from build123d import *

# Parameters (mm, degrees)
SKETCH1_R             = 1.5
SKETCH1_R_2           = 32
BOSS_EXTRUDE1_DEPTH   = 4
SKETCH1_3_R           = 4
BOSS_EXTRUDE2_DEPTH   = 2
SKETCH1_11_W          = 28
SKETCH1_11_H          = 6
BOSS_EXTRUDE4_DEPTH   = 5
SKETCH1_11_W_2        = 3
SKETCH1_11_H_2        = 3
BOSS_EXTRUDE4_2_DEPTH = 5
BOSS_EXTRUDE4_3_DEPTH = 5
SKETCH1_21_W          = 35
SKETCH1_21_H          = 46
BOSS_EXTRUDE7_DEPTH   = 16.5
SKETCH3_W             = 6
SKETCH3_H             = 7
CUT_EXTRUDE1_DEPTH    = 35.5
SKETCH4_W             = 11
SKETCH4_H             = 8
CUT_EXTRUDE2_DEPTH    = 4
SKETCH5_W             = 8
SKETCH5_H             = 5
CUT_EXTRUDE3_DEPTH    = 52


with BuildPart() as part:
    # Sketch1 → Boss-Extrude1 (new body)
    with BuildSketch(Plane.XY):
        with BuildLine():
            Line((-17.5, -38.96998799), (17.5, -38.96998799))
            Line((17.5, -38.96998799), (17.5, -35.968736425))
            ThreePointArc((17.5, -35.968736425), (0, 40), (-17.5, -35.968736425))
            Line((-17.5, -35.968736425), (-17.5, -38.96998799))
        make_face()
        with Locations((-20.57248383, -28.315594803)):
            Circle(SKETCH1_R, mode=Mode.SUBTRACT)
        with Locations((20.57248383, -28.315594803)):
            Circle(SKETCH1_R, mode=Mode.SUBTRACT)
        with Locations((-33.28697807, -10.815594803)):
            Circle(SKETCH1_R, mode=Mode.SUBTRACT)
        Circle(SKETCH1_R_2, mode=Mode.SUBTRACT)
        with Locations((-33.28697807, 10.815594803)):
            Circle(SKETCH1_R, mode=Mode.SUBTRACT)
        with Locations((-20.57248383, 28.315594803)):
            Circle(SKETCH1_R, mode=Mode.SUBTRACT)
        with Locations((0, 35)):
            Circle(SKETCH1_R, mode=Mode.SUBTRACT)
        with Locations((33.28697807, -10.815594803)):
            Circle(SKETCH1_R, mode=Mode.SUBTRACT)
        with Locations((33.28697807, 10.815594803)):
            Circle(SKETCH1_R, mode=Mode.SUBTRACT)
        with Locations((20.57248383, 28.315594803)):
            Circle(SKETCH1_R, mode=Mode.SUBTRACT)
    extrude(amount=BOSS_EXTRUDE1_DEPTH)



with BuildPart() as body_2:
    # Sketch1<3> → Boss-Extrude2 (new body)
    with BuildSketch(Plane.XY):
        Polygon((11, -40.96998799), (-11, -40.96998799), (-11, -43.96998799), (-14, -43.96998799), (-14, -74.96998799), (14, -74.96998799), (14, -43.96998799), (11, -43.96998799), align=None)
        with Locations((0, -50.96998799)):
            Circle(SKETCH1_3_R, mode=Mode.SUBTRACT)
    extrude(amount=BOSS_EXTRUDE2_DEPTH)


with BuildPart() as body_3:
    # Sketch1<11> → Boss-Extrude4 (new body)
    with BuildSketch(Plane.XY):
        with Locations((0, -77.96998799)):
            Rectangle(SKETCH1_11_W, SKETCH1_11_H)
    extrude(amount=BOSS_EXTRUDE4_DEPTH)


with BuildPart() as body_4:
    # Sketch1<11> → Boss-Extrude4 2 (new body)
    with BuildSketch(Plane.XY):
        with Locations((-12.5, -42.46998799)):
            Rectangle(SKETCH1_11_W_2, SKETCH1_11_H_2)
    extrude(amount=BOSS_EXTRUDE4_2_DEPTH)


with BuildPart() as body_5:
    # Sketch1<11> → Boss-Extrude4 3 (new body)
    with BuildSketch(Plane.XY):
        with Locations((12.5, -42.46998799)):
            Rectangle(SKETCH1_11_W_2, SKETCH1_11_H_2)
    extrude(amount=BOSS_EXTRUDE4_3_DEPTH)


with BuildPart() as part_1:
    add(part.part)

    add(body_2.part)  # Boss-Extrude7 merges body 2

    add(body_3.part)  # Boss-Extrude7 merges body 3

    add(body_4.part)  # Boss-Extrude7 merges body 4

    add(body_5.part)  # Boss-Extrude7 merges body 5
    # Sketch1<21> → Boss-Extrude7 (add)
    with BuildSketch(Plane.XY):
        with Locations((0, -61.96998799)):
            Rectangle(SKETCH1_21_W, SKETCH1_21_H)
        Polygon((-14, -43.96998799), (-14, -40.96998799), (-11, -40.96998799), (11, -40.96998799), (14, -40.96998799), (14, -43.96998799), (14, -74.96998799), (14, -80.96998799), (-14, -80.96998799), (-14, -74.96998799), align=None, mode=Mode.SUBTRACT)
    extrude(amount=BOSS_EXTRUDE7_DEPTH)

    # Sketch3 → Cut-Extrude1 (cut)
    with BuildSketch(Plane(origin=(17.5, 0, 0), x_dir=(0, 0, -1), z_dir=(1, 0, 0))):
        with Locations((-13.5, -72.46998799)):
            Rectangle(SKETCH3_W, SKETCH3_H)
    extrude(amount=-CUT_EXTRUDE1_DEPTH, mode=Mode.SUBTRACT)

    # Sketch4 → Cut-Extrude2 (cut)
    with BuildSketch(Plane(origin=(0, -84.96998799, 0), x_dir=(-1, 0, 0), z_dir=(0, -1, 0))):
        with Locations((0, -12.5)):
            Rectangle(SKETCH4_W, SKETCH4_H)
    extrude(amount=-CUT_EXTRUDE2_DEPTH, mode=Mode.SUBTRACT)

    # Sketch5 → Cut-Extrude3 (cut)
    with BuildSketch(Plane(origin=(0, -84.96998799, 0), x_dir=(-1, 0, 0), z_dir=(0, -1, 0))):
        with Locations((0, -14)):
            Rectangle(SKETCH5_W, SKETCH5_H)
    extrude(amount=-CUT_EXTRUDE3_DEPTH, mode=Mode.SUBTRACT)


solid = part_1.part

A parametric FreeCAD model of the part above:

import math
import FreeCAD as App
import Part
import Sketcher
from FreeCAD import Vector

doc = App.newDocument("Part")
params = doc.addObject("Spreadsheet::Sheet", "Params")
for row, (alias, value) in enumerate([
    ("sketch1_diameter", "3 mm"),
    ("sketch1_diameter2", "64 mm"),
    ("sketch1_radius", "40 mm"),
    ("sketch1_width", "35 mm"),
    ("pad1_length", "4 mm"),
    ("sketch2_diameter", "8 mm"),
    ("sketch2_width", "22 mm"),
    ("sketch2_width2", "3 mm"),
    ("sketch2_height", "31 mm"),
    ("pad2_length", "2 mm"),
    ("sketch3_width", "28 mm"),
    ("sketch3_height", "6 mm"),
    ("pad3_length", "5 mm"),
    ("sketch4_width", "3 mm"),
    ("pad4_length", "5 mm"),
    ("sketch5_width", "3 mm"),
    ("pad5_length", "5 mm"),
    ("sketch6_width", "35 mm"),
    ("sketch6_width2", "28 mm"),
    ("sketch6_height", "46 mm"),
    ("sketch6_height2", "40 mm"),
    ("pad6_length", "16.5 mm"),
    ("sketch7_width", "7 mm"),
    ("sketch7_height", "6 mm"),
    ("pocket1_length", "35.5 mm"),
    ("sketch8_width", "11 mm"),
    ("sketch8_height", "8 mm"),
    ("pocket2_length", "4 mm"),
    ("sketch9_width", "8 mm"),
    ("sketch9_height", "5 mm"),
    ("pocket3_length", "52 mm"),
], start=1):
    params.set(f"A{row}", alias)
    params.set(f"B{row}", "=" + value)
    params.setAlias(f"B{row}", alias)

body = doc.addObject("PartDesign::Body", "Body")

# Sketch on XY plane
sketch1 = body.newObject("Sketcher::SketchObject", "Sketch")
sketch1.AttachmentSupport = (doc.getObject("XY_Plane"), [""])
sketch1.MapMode = "FlatFace"
sketch1.addGeometry([
    Part.LineSegment(Vector(-17.5, -39, 0), Vector(17.5, -39, 0)),  # 0
    Part.LineSegment(Vector(17.5, -39, 0), Vector(17.5, -36, 0)),  # 1
    Part.ArcOfCircle(Part.Circle(Vector(0, 0, 0), Vector(0, 0, 1), 40), math.radians(-64), math.radians(244)),  # 2
    Part.LineSegment(Vector(-17.5, -36, 0), Vector(-17.5, -39, 0)),  # 3
    Part.Circle(Vector(-20.6, -28.3, 0), Vector(0, 0, 1), 1.5),  # 4
    Part.Circle(Vector(-33.3, -10.8, 0), Vector(0, 0, 1), 1.5),  # 5
    Part.Circle(Vector(20.6, -28.3, 0), Vector(0, 0, 1), 1.5),  # 6
    Part.Circle(Vector(0, 0, 0), Vector(0, 0, 1), 32),  # 7
    Part.Circle(Vector(33.3, -10.8, 0), Vector(0, 0, 1), 1.5),  # 8
    Part.Circle(Vector(-33.3, 10.8, 0), Vector(0, 0, 1), 1.5),  # 9
    Part.Circle(Vector(-20.6, 28.3, 0), Vector(0, 0, 1), 1.5),  # 10
    Part.Circle(Vector(33.3, 10.8, 0), Vector(0, 0, 1), 1.5),  # 11
    Part.Circle(Vector(0, 35, 0), Vector(0, 0, 1), 1.5),  # 12
    Part.Circle(Vector(20.6, 28.3, 0), Vector(0, 0, 1), 1.5),  # 13
], False)
sketch1.addConstraint([
    Sketcher.Constraint("Coincident", 0, 2, 1, 1),
    Sketcher.Constraint("Coincident", 1, 2, 2, 1),
    Sketcher.Constraint("Coincident", 2, 2, 3, 1),
    Sketcher.Constraint("Coincident", 3, 2, 0, 1),
    Sketcher.Constraint("Horizontal", 0),
    Sketcher.Constraint("Vertical", 1),
    Sketcher.Constraint("Vertical", 3),
    Sketcher.Constraint("Coincident", 2, 3, -1, 1),
    Sketcher.Constraint("Coincident", 7, 3, -1, 1),
    Sketcher.Constraint("Equal", 4, 5),
    Sketcher.Constraint("Equal", 5, 6),
    Sketcher.Constraint("Equal", 6, 8),
    Sketcher.Constraint("Equal", 8, 9),
    Sketcher.Constraint("Equal", 9, 10),
    Sketcher.Constraint("Equal", 10, 11),
    Sketcher.Constraint("Equal", 11, 12),
    Sketcher.Constraint("Equal", 12, 13),
    Sketcher.Constraint("Symmetric", 8, 3, 9, 3, -1, 1),
    Sketcher.Constraint("Symmetric", 6, 3, 10, 3, -1, 1),
    Sketcher.Constraint("Symmetric", 5, 3, 11, 3, -1, 1),
    Sketcher.Constraint("Symmetric", 4, 3, 13, 3, -1, 1),
    Sketcher.Constraint("Symmetric", 4, 3, 6, 3, -2),
    Sketcher.Constraint("Symmetric", 5, 3, 8, 3, -2),
    Sketcher.Constraint("PointOnObject", 12, 3, -2),
    Sketcher.Constraint("Horizontal", 1, 2, 2, 2),
    Sketcher.Constraint("Diameter", 4, 3.0),
    Sketcher.Constraint("Diameter", 7, 64.0),
    Sketcher.Constraint("Radius", 2, 40.0),
    Sketcher.Constraint("DistanceX", 0, 1, 0, 2, 35.0),
    Sketcher.Constraint("DistanceY", -1, 1, 12, 3, 35.0),
    Sketcher.Constraint("DistanceY", 4, 3, 5, 3, 17.5),
    Sketcher.Constraint("DistanceY", 1, 1, 1, 2, 3.001252),
    Sketcher.Constraint("DistanceX", 5, 3, -1, 1, 33.286978),
    Sketcher.Constraint("DistanceX", 5, 3, 6, 3, 53.859462),
    Sketcher.Constraint("DistanceY", 5, 3, 9, 3, 21.63119),
])
sketch1.setExpression("Constraints[25]", "Params.sketch1_diameter")
sketch1.setExpression("Constraints[26]", "Params.sketch1_diameter2")
sketch1.setExpression("Constraints[27]", "Params.sketch1_radius")
sketch1.setExpression("Constraints[28]", "Params.sketch1_width")
pad1 = body.newObject("PartDesign::Pad", "Pad")
pad1.Profile = sketch1
pad1.setExpression("Length", "Params.pad1_length")
body2 = doc.addObject("PartDesign::Body", "Body001")

# Sketch on XY plane
sketch2 = body2.newObject("Sketcher::SketchObject", "Sketch001")
sketch2.AttachmentSupport = (doc.getObject("XY_Plane001"), [""])
sketch2.MapMode = "FlatFace"
sketch2.addGeometry([
    Part.LineSegment(Vector(11, -41, 0), Vector(-11, -41, 0)),  # 0
    Part.LineSegment(Vector(-11, -41, 0), Vector(-11, -44, 0)),  # 1
    Part.LineSegment(Vector(-11, -44, 0), Vector(-14, -44, 0)),  # 2
    Part.LineSegment(Vector(-14, -44, 0), Vector(-14, -75, 0)),  # 3
    Part.LineSegment(Vector(-14, -75, 0), Vector(14, -75, 0)),  # 4
    Part.LineSegment(Vector(14, -75, 0), Vector(14, -44, 0)),  # 5
    Part.LineSegment(Vector(14, -44, 0), Vector(11, -44, 0)),  # 6
    Part.LineSegment(Vector(11, -44, 0), Vector(11, -41, 0)),  # 7
    Part.Circle(Vector(0, -51, 0), Vector(0, 0, 1), 4),  # 8
], False)
sketch2.addConstraint([
    Sketcher.Constraint("Coincident", 0, 2, 1, 1),
    Sketcher.Constraint("Coincident", 1, 2, 2, 1),
    Sketcher.Constraint("Coincident", 2, 2, 3, 1),
    Sketcher.Constraint("Coincident", 3, 2, 4, 1),
    Sketcher.Constraint("Coincident", 4, 2, 5, 1),
    Sketcher.Constraint("Coincident", 5, 2, 6, 1),
    Sketcher.Constraint("Coincident", 6, 2, 7, 1),
    Sketcher.Constraint("Coincident", 7, 2, 0, 1),
    Sketcher.Constraint("Horizontal", 0),
    Sketcher.Constraint("Vertical", 1),
    Sketcher.Constraint("Horizontal", 2),
    Sketcher.Constraint("Vertical", 3),
    Sketcher.Constraint("Horizontal", 4),
    Sketcher.Constraint("Vertical", 5),
    Sketcher.Constraint("Horizontal", 6),
    Sketcher.Constraint("Vertical", 7),
    Sketcher.Constraint("Symmetric", 2, 2, 5, 2, -2),
    Sketcher.Constraint("PointOnObject", 8, 3, -2),
    Sketcher.Constraint("Equal", 2, 6),
    Sketcher.Constraint("Equal", 6, 1),
    Sketcher.Constraint("Diameter", 8, 8.0),
    Sketcher.Constraint("DistanceX", 0, 2, 0, 1, 22.0),
    Sketcher.Constraint("DistanceX", 2, 2, 2, 1, 3.0),
    Sketcher.Constraint("DistanceY", 3, 2, 3, 1, 31.0),
    Sketcher.Constraint("DistanceY", 8, 3, 0, 2, 10.0),
    Sketcher.Constraint("DistanceY", 8, 3, -1, 1, 50.969988),
])
sketch2.setExpression("Constraints[20]", "Params.sketch2_diameter")
sketch2.setExpression("Constraints[21]", "Params.sketch2_width")
sketch2.setExpression("Constraints[22]", "Params.sketch2_width2")
sketch2.setExpression("Constraints[23]", "Params.sketch2_height")
pad2 = body2.newObject("PartDesign::Pad", "Pad001")
pad2.Profile = sketch2
pad2.setExpression("Length", "Params.pad2_length")
body3 = doc.addObject("PartDesign::Body", "Body002")

# Sketch on XY plane
sketch3 = body3.newObject("Sketcher::SketchObject", "Sketch002")
sketch3.AttachmentSupport = (doc.getObject("XY_Plane002"), [""])
sketch3.MapMode = "FlatFace"
sketch3.addGeometry([
    Part.LineSegment(Vector(-14, -75, 0), Vector(-14, -81, 0)),
    Part.LineSegment(Vector(-14, -81, 0), Vector(14, -81, 0)),
    Part.LineSegment(Vector(14, -81, 0), Vector(14, -75, 0)),
    Part.LineSegment(Vector(14, -75, 0), Vector(-14, -75, 0)),
], False)
sketch3.addConstraint([
    Sketcher.Constraint("Coincident", 0, 2, 1, 1),
    Sketcher.Constraint("Coincident", 1, 2, 2, 1),
    Sketcher.Constraint("Coincident", 2, 2, 3, 1),
    Sketcher.Constraint("Coincident", 3, 2, 0, 1),
    Sketcher.Constraint("Vertical", 0),
    Sketcher.Constraint("Horizontal", 1),
    Sketcher.Constraint("Vertical", 2),
    Sketcher.Constraint("Horizontal", 3),
    Sketcher.Constraint("DistanceX", 1, 1, 1, 2, 28.0),
    Sketcher.Constraint("DistanceY", 0, 2, 0, 1, 6.0),
    Sketcher.Constraint("DistanceX", 0, 2, -1, 1, 14.0),
    Sketcher.Constraint("DistanceY", 0, 2, -1, 1, 80.969988),
])
sketch3.setExpression("Constraints[8]", "Params.sketch3_width")
sketch3.setExpression("Constraints[9]", "Params.sketch3_height")
pad3 = body3.newObject("PartDesign::Pad", "Pad002")
pad3.Profile = sketch3
pad3.setExpression("Length", "Params.pad3_length")
body4 = doc.addObject("PartDesign::Body", "Body003")

# Sketch on XY plane
sketch4 = body4.newObject("Sketcher::SketchObject", "Sketch003")
sketch4.AttachmentSupport = (doc.getObject("XY_Plane003"), [""])
sketch4.MapMode = "FlatFace"
sketch4.addGeometry([
    Part.LineSegment(Vector(-14, -41, 0), Vector(-14, -44, 0)),
    Part.LineSegment(Vector(-14, -44, 0), Vector(-11, -44, 0)),
    Part.LineSegment(Vector(-11, -44, 0), Vector(-11, -41, 0)),
    Part.LineSegment(Vector(-11, -41, 0), Vector(-14, -41, 0)),
], False)
sketch4.addConstraint([
    Sketcher.Constraint("Coincident", 0, 2, 1, 1),
    Sketcher.Constraint("Coincident", 1, 2, 2, 1),
    Sketcher.Constraint("Coincident", 2, 2, 3, 1),
    Sketcher.Constraint("Coincident", 3, 2, 0, 1),
    Sketcher.Constraint("Vertical", 0),
    Sketcher.Constraint("Horizontal", 1),
    Sketcher.Constraint("Vertical", 2),
    Sketcher.Constraint("Horizontal", 3),
    Sketcher.Constraint("Equal", 3, 0),
    Sketcher.Constraint("DistanceX", 1, 1, 1, 2, 3.0),
    Sketcher.Constraint("DistanceX", 0, 2, -1, 1, 14.0),
    Sketcher.Constraint("DistanceY", 0, 2, -1, 1, 43.969988),
])
sketch4.setExpression("Constraints[9]", "Params.sketch4_width")
pad4 = body4.newObject("PartDesign::Pad", "Pad003")
pad4.Profile = sketch4
pad4.setExpression("Length", "Params.pad4_length")
body5 = doc.addObject("PartDesign::Body", "Body004")

# Sketch on XY plane
sketch5 = body5.newObject("Sketcher::SketchObject", "Sketch004")
sketch5.AttachmentSupport = (doc.getObject("XY_Plane004"), [""])
sketch5.MapMode = "FlatFace"
sketch5.addGeometry([
    Part.LineSegment(Vector(11, -41, 0), Vector(11, -44, 0)),
    Part.LineSegment(Vector(11, -44, 0), Vector(14, -44, 0)),
    Part.LineSegment(Vector(14, -44, 0), Vector(14, -41, 0)),
    Part.LineSegment(Vector(14, -41, 0), Vector(11, -41, 0)),
], False)
sketch5.addConstraint([
    Sketcher.Constraint("Coincident", 0, 2, 1, 1),
    Sketcher.Constraint("Coincident", 1, 2, 2, 1),
    Sketcher.Constraint("Coincident", 2, 2, 3, 1),
    Sketcher.Constraint("Coincident", 3, 2, 0, 1),
    Sketcher.Constraint("Vertical", 0),
    Sketcher.Constraint("Horizontal", 1),
    Sketcher.Constraint("Vertical", 2),
    Sketcher.Constraint("Horizontal", 3),
    Sketcher.Constraint("Equal", 3, 0),
    Sketcher.Constraint("DistanceX", 1, 1, 1, 2, 3.0),
    Sketcher.Constraint("DistanceX", -1, 1, 0, 2, 11.0),
    Sketcher.Constraint("DistanceY", 0, 2, -1, 1, 43.969988),
])
sketch5.setExpression("Constraints[9]", "Params.sketch5_width")
pad5 = body5.newObject("PartDesign::Pad", "Pad004")
pad5.Profile = sketch5
pad5.setExpression("Length", "Params.pad5_length")
body.AllowCompound = True
doc.recompute()

boolean = body.newObject("PartDesign::Boolean", "Boolean")
boolean.Type = "Fuse"
boolean.addObjects([body2])
doc.recompute()

boolean2 = body.newObject("PartDesign::Boolean", "Boolean001")
boolean2.Type = "Fuse"
boolean2.addObjects([body3])
doc.recompute()

boolean3 = body.newObject("PartDesign::Boolean", "Boolean002")
boolean3.Type = "Fuse"
boolean3.addObjects([body4])
doc.recompute()

boolean4 = body.newObject("PartDesign::Boolean", "Boolean003")
boolean4.Type = "Fuse"
boolean4.addObjects([body5])

# Sketch on XY plane
sketch6 = body.newObject("Sketcher::SketchObject", "Sketch005")
sketch6.AttachmentSupport = (doc.getObject("XY_Plane"), [""])
sketch6.MapMode = "FlatFace"
sketch6.addGeometry([
    Part.LineSegment(Vector(-18, -39, 0), Vector(-18, -85, 0)),  # 0
    Part.LineSegment(Vector(-18, -85, 0), Vector(18, -85, 0)),  # 1
    Part.LineSegment(Vector(18, -85, 0), Vector(18, -39, 0)),  # 2
    Part.LineSegment(Vector(18, -39, 0), Vector(-18, -39, 0)),  # 3
    Part.LineSegment(Vector(-14, -81, 0), Vector(-14, -41, 0)),  # 4
    Part.LineSegment(Vector(-14, -41, 0), Vector(14, -41, 0)),  # 5
    Part.LineSegment(Vector(14, -41, 0), Vector(14, -81, 0)),  # 6
    Part.LineSegment(Vector(14, -81, 0), Vector(-14, -81, 0)),  # 7
], False)
sketch6.addConstraint([
    Sketcher.Constraint("Coincident", 0, 2, 1, 1),
    Sketcher.Constraint("Coincident", 1, 2, 2, 1),
    Sketcher.Constraint("Coincident", 2, 2, 3, 1),
    Sketcher.Constraint("Coincident", 3, 2, 0, 1),
    Sketcher.Constraint("Coincident", 4, 2, 5, 1),
    Sketcher.Constraint("Coincident", 5, 2, 6, 1),
    Sketcher.Constraint("Coincident", 6, 2, 7, 1),
    Sketcher.Constraint("Coincident", 7, 2, 4, 1),
    Sketcher.Constraint("Vertical", 0),
    Sketcher.Constraint("Horizontal", 1),
    Sketcher.Constraint("Vertical", 2),
    Sketcher.Constraint("Horizontal", 3),
    Sketcher.Constraint("Vertical", 4),
    Sketcher.Constraint("Horizontal", 5),
    Sketcher.Constraint("Vertical", 6),
    Sketcher.Constraint("Horizontal", 7),
    Sketcher.Constraint("DistanceX", 1, 1, 1, 2, 35.0),
    Sketcher.Constraint("DistanceX", 5, 1, 5, 2, 28.0),
    Sketcher.Constraint("DistanceY", 0, 2, 0, 1, 46.0),
    Sketcher.Constraint("DistanceY", 4, 1, 4, 2, 40.0),
    Sketcher.Constraint("DistanceX", 4, 2, -1, 1, 14.0),
    Sketcher.Constraint("DistanceY", 4, 2, 3, 2, 2.0),
    Sketcher.Constraint("DistanceX", 0, 2, -1, 1, 17.5),
    Sketcher.Constraint("DistanceY", 0, 2, -1, 1, 84.969988),
])
sketch6.setExpression("Constraints[16]", "Params.sketch6_width")
sketch6.setExpression("Constraints[17]", "Params.sketch6_width2")
sketch6.setExpression("Constraints[18]", "Params.sketch6_height")
sketch6.setExpression("Constraints[19]", "Params.sketch6_height2")
pad6 = body.newObject("PartDesign::Pad", "Pad005")
pad6.Profile = sketch6
pad6.setExpression("Length", "Params.pad6_length")

# Sketch on YZ plane
sketch7 = body.newObject("Sketcher::SketchObject", "Sketch006")
sketch7.AttachmentSupport = (doc.getObject("YZ_Plane"), [""])
sketch7.MapMode = "FlatFace"
sketch7.AttachmentOffset = App.Placement(Vector(0, 0, 17.5), App.Rotation())
sketch7.addGeometry([
    Part.LineSegment(Vector(-69, 16, 0), Vector(-76, 16, 0)),
    Part.LineSegment(Vector(-76, 16, 0), Vector(-76, 10, 0)),
    Part.LineSegment(Vector(-76, 10, 0), Vector(-69, 10, 0)),
    Part.LineSegment(Vector(-69, 10, 0), Vector(-69, 16, 0)),
], False)
sketch7.addConstraint([
    Sketcher.Constraint("Coincident", 0, 2, 1, 1),
    Sketcher.Constraint("Coincident", 1, 2, 2, 1),
    Sketcher.Constraint("Coincident", 2, 2, 3, 1),
    Sketcher.Constraint("Coincident", 3, 2, 0, 1),
    Sketcher.Constraint("Horizontal", 0),
    Sketcher.Constraint("Vertical", 1),
    Sketcher.Constraint("Horizontal", 2),
    Sketcher.Constraint("Vertical", 3),
    Sketcher.Constraint("DistanceX", 0, 2, 0, 1, 7.0),
    Sketcher.Constraint("DistanceY", 1, 2, 1, 1, 6.0),
    Sketcher.Constraint("DistanceY", -1, 1, 0, 2, 16.5),
    Sketcher.Constraint("DistanceX", 0, 2, -1, 1, 75.969988),
])
sketch7.setExpression("Constraints[8]", "Params.sketch7_width")
sketch7.setExpression("Constraints[9]", "Params.sketch7_height")
pocket1 = body.newObject("PartDesign::Pocket", "Pocket")
pocket1.Profile = sketch7
pocket1.setExpression("Length", "Params.pocket1_length")

# Sketch on XZ plane
sketch8 = body.newObject("Sketcher::SketchObject", "Sketch007")
sketch8.AttachmentSupport = (doc.getObject("XZ_Plane"), [""])
sketch8.MapMode = "FlatFace"
sketch8.AttachmentOffset = App.Placement(Vector(0, 0, 84.969988), App.Rotation())
sketch8.addGeometry([
    Part.LineSegment(Vector(6, 8, 0), Vector(6, 16, 0)),
    Part.LineSegment(Vector(6, 16, 0), Vector(-6, 16, 0)),
    Part.LineSegment(Vector(-6, 16, 0), Vector(-6, 8, 0)),
    Part.LineSegment(Vector(-6, 8, 0), Vector(6, 8, 0)),
], False)
sketch8.addConstraint([
    Sketcher.Constraint("Coincident", 0, 2, 1, 1),
    Sketcher.Constraint("Coincident", 1, 2, 2, 1),
    Sketcher.Constraint("Coincident", 2, 2, 3, 1),
    Sketcher.Constraint("Coincident", 3, 2, 0, 1),
    Sketcher.Constraint("Vertical", 0),
    Sketcher.Constraint("Horizontal", 1),
    Sketcher.Constraint("Vertical", 2),
    Sketcher.Constraint("Horizontal", 3),
    Sketcher.Constraint("DistanceX", 1, 2, 1, 1, 11.0),
    Sketcher.Constraint("DistanceY", 0, 1, 0, 2, 8.0),
    Sketcher.Constraint("DistanceX", -1, 1, 0, 2, 5.5),
    Sketcher.Constraint("DistanceY", -1, 1, 0, 2, 16.5),
])
sketch8.setExpression("Constraints[8]", "Params.sketch8_width")
sketch8.setExpression("Constraints[9]", "Params.sketch8_height")
pocket2 = body.newObject("PartDesign::Pocket", "Pocket001")
pocket2.Profile = sketch8
pocket2.setExpression("Length", "Params.pocket2_length")

# Sketch on XZ plane
sketch9 = body.newObject("Sketcher::SketchObject", "Sketch008")
sketch9.AttachmentSupport = (doc.getObject("XZ_Plane"), [""])
sketch9.MapMode = "FlatFace"
sketch9.AttachmentOffset = App.Placement(Vector(0, 0, 84.969988), App.Rotation())
sketch9.addGeometry([
    Part.LineSegment(Vector(4, 12, 0), Vector(4, 16, 0)),
    Part.LineSegment(Vector(4, 16, 0), Vector(-4, 16, 0)),
    Part.LineSegment(Vector(-4, 16, 0), Vector(-4, 12, 0)),
    Part.LineSegment(Vector(-4, 12, 0), Vector(4, 12, 0)),
], False)
sketch9.addConstraint([
    Sketcher.Constraint("Coincident", 0, 2, 1, 1),
    Sketcher.Constraint("Coincident", 1, 2, 2, 1),
    Sketcher.Constraint("Coincident", 2, 2, 3, 1),
    Sketcher.Constraint("Coincident", 3, 2, 0, 1),
    Sketcher.Constraint("Vertical", 0),
    Sketcher.Constraint("Horizontal", 1),
    Sketcher.Constraint("Vertical", 2),
    Sketcher.Constraint("Horizontal", 3),
    Sketcher.Constraint("DistanceX", 1, 2, 1, 1, 8.0),
    Sketcher.Constraint("DistanceY", 0, 1, 0, 2, 5.0),
    Sketcher.Constraint("DistanceX", -1, 1, 0, 2, 4.0),
    Sketcher.Constraint("DistanceY", -1, 1, 0, 2, 16.5),
])
sketch9.setExpression("Constraints[8]", "Params.sketch9_width")
sketch9.setExpression("Constraints[9]", "Params.sketch9_height")
pocket3 = body.newObject("PartDesign::Pocket", "Pocket002")
pocket3.Profile = sketch9
pocket3.setExpression("Length", "Params.pocket3_length")

doc.recompute()
